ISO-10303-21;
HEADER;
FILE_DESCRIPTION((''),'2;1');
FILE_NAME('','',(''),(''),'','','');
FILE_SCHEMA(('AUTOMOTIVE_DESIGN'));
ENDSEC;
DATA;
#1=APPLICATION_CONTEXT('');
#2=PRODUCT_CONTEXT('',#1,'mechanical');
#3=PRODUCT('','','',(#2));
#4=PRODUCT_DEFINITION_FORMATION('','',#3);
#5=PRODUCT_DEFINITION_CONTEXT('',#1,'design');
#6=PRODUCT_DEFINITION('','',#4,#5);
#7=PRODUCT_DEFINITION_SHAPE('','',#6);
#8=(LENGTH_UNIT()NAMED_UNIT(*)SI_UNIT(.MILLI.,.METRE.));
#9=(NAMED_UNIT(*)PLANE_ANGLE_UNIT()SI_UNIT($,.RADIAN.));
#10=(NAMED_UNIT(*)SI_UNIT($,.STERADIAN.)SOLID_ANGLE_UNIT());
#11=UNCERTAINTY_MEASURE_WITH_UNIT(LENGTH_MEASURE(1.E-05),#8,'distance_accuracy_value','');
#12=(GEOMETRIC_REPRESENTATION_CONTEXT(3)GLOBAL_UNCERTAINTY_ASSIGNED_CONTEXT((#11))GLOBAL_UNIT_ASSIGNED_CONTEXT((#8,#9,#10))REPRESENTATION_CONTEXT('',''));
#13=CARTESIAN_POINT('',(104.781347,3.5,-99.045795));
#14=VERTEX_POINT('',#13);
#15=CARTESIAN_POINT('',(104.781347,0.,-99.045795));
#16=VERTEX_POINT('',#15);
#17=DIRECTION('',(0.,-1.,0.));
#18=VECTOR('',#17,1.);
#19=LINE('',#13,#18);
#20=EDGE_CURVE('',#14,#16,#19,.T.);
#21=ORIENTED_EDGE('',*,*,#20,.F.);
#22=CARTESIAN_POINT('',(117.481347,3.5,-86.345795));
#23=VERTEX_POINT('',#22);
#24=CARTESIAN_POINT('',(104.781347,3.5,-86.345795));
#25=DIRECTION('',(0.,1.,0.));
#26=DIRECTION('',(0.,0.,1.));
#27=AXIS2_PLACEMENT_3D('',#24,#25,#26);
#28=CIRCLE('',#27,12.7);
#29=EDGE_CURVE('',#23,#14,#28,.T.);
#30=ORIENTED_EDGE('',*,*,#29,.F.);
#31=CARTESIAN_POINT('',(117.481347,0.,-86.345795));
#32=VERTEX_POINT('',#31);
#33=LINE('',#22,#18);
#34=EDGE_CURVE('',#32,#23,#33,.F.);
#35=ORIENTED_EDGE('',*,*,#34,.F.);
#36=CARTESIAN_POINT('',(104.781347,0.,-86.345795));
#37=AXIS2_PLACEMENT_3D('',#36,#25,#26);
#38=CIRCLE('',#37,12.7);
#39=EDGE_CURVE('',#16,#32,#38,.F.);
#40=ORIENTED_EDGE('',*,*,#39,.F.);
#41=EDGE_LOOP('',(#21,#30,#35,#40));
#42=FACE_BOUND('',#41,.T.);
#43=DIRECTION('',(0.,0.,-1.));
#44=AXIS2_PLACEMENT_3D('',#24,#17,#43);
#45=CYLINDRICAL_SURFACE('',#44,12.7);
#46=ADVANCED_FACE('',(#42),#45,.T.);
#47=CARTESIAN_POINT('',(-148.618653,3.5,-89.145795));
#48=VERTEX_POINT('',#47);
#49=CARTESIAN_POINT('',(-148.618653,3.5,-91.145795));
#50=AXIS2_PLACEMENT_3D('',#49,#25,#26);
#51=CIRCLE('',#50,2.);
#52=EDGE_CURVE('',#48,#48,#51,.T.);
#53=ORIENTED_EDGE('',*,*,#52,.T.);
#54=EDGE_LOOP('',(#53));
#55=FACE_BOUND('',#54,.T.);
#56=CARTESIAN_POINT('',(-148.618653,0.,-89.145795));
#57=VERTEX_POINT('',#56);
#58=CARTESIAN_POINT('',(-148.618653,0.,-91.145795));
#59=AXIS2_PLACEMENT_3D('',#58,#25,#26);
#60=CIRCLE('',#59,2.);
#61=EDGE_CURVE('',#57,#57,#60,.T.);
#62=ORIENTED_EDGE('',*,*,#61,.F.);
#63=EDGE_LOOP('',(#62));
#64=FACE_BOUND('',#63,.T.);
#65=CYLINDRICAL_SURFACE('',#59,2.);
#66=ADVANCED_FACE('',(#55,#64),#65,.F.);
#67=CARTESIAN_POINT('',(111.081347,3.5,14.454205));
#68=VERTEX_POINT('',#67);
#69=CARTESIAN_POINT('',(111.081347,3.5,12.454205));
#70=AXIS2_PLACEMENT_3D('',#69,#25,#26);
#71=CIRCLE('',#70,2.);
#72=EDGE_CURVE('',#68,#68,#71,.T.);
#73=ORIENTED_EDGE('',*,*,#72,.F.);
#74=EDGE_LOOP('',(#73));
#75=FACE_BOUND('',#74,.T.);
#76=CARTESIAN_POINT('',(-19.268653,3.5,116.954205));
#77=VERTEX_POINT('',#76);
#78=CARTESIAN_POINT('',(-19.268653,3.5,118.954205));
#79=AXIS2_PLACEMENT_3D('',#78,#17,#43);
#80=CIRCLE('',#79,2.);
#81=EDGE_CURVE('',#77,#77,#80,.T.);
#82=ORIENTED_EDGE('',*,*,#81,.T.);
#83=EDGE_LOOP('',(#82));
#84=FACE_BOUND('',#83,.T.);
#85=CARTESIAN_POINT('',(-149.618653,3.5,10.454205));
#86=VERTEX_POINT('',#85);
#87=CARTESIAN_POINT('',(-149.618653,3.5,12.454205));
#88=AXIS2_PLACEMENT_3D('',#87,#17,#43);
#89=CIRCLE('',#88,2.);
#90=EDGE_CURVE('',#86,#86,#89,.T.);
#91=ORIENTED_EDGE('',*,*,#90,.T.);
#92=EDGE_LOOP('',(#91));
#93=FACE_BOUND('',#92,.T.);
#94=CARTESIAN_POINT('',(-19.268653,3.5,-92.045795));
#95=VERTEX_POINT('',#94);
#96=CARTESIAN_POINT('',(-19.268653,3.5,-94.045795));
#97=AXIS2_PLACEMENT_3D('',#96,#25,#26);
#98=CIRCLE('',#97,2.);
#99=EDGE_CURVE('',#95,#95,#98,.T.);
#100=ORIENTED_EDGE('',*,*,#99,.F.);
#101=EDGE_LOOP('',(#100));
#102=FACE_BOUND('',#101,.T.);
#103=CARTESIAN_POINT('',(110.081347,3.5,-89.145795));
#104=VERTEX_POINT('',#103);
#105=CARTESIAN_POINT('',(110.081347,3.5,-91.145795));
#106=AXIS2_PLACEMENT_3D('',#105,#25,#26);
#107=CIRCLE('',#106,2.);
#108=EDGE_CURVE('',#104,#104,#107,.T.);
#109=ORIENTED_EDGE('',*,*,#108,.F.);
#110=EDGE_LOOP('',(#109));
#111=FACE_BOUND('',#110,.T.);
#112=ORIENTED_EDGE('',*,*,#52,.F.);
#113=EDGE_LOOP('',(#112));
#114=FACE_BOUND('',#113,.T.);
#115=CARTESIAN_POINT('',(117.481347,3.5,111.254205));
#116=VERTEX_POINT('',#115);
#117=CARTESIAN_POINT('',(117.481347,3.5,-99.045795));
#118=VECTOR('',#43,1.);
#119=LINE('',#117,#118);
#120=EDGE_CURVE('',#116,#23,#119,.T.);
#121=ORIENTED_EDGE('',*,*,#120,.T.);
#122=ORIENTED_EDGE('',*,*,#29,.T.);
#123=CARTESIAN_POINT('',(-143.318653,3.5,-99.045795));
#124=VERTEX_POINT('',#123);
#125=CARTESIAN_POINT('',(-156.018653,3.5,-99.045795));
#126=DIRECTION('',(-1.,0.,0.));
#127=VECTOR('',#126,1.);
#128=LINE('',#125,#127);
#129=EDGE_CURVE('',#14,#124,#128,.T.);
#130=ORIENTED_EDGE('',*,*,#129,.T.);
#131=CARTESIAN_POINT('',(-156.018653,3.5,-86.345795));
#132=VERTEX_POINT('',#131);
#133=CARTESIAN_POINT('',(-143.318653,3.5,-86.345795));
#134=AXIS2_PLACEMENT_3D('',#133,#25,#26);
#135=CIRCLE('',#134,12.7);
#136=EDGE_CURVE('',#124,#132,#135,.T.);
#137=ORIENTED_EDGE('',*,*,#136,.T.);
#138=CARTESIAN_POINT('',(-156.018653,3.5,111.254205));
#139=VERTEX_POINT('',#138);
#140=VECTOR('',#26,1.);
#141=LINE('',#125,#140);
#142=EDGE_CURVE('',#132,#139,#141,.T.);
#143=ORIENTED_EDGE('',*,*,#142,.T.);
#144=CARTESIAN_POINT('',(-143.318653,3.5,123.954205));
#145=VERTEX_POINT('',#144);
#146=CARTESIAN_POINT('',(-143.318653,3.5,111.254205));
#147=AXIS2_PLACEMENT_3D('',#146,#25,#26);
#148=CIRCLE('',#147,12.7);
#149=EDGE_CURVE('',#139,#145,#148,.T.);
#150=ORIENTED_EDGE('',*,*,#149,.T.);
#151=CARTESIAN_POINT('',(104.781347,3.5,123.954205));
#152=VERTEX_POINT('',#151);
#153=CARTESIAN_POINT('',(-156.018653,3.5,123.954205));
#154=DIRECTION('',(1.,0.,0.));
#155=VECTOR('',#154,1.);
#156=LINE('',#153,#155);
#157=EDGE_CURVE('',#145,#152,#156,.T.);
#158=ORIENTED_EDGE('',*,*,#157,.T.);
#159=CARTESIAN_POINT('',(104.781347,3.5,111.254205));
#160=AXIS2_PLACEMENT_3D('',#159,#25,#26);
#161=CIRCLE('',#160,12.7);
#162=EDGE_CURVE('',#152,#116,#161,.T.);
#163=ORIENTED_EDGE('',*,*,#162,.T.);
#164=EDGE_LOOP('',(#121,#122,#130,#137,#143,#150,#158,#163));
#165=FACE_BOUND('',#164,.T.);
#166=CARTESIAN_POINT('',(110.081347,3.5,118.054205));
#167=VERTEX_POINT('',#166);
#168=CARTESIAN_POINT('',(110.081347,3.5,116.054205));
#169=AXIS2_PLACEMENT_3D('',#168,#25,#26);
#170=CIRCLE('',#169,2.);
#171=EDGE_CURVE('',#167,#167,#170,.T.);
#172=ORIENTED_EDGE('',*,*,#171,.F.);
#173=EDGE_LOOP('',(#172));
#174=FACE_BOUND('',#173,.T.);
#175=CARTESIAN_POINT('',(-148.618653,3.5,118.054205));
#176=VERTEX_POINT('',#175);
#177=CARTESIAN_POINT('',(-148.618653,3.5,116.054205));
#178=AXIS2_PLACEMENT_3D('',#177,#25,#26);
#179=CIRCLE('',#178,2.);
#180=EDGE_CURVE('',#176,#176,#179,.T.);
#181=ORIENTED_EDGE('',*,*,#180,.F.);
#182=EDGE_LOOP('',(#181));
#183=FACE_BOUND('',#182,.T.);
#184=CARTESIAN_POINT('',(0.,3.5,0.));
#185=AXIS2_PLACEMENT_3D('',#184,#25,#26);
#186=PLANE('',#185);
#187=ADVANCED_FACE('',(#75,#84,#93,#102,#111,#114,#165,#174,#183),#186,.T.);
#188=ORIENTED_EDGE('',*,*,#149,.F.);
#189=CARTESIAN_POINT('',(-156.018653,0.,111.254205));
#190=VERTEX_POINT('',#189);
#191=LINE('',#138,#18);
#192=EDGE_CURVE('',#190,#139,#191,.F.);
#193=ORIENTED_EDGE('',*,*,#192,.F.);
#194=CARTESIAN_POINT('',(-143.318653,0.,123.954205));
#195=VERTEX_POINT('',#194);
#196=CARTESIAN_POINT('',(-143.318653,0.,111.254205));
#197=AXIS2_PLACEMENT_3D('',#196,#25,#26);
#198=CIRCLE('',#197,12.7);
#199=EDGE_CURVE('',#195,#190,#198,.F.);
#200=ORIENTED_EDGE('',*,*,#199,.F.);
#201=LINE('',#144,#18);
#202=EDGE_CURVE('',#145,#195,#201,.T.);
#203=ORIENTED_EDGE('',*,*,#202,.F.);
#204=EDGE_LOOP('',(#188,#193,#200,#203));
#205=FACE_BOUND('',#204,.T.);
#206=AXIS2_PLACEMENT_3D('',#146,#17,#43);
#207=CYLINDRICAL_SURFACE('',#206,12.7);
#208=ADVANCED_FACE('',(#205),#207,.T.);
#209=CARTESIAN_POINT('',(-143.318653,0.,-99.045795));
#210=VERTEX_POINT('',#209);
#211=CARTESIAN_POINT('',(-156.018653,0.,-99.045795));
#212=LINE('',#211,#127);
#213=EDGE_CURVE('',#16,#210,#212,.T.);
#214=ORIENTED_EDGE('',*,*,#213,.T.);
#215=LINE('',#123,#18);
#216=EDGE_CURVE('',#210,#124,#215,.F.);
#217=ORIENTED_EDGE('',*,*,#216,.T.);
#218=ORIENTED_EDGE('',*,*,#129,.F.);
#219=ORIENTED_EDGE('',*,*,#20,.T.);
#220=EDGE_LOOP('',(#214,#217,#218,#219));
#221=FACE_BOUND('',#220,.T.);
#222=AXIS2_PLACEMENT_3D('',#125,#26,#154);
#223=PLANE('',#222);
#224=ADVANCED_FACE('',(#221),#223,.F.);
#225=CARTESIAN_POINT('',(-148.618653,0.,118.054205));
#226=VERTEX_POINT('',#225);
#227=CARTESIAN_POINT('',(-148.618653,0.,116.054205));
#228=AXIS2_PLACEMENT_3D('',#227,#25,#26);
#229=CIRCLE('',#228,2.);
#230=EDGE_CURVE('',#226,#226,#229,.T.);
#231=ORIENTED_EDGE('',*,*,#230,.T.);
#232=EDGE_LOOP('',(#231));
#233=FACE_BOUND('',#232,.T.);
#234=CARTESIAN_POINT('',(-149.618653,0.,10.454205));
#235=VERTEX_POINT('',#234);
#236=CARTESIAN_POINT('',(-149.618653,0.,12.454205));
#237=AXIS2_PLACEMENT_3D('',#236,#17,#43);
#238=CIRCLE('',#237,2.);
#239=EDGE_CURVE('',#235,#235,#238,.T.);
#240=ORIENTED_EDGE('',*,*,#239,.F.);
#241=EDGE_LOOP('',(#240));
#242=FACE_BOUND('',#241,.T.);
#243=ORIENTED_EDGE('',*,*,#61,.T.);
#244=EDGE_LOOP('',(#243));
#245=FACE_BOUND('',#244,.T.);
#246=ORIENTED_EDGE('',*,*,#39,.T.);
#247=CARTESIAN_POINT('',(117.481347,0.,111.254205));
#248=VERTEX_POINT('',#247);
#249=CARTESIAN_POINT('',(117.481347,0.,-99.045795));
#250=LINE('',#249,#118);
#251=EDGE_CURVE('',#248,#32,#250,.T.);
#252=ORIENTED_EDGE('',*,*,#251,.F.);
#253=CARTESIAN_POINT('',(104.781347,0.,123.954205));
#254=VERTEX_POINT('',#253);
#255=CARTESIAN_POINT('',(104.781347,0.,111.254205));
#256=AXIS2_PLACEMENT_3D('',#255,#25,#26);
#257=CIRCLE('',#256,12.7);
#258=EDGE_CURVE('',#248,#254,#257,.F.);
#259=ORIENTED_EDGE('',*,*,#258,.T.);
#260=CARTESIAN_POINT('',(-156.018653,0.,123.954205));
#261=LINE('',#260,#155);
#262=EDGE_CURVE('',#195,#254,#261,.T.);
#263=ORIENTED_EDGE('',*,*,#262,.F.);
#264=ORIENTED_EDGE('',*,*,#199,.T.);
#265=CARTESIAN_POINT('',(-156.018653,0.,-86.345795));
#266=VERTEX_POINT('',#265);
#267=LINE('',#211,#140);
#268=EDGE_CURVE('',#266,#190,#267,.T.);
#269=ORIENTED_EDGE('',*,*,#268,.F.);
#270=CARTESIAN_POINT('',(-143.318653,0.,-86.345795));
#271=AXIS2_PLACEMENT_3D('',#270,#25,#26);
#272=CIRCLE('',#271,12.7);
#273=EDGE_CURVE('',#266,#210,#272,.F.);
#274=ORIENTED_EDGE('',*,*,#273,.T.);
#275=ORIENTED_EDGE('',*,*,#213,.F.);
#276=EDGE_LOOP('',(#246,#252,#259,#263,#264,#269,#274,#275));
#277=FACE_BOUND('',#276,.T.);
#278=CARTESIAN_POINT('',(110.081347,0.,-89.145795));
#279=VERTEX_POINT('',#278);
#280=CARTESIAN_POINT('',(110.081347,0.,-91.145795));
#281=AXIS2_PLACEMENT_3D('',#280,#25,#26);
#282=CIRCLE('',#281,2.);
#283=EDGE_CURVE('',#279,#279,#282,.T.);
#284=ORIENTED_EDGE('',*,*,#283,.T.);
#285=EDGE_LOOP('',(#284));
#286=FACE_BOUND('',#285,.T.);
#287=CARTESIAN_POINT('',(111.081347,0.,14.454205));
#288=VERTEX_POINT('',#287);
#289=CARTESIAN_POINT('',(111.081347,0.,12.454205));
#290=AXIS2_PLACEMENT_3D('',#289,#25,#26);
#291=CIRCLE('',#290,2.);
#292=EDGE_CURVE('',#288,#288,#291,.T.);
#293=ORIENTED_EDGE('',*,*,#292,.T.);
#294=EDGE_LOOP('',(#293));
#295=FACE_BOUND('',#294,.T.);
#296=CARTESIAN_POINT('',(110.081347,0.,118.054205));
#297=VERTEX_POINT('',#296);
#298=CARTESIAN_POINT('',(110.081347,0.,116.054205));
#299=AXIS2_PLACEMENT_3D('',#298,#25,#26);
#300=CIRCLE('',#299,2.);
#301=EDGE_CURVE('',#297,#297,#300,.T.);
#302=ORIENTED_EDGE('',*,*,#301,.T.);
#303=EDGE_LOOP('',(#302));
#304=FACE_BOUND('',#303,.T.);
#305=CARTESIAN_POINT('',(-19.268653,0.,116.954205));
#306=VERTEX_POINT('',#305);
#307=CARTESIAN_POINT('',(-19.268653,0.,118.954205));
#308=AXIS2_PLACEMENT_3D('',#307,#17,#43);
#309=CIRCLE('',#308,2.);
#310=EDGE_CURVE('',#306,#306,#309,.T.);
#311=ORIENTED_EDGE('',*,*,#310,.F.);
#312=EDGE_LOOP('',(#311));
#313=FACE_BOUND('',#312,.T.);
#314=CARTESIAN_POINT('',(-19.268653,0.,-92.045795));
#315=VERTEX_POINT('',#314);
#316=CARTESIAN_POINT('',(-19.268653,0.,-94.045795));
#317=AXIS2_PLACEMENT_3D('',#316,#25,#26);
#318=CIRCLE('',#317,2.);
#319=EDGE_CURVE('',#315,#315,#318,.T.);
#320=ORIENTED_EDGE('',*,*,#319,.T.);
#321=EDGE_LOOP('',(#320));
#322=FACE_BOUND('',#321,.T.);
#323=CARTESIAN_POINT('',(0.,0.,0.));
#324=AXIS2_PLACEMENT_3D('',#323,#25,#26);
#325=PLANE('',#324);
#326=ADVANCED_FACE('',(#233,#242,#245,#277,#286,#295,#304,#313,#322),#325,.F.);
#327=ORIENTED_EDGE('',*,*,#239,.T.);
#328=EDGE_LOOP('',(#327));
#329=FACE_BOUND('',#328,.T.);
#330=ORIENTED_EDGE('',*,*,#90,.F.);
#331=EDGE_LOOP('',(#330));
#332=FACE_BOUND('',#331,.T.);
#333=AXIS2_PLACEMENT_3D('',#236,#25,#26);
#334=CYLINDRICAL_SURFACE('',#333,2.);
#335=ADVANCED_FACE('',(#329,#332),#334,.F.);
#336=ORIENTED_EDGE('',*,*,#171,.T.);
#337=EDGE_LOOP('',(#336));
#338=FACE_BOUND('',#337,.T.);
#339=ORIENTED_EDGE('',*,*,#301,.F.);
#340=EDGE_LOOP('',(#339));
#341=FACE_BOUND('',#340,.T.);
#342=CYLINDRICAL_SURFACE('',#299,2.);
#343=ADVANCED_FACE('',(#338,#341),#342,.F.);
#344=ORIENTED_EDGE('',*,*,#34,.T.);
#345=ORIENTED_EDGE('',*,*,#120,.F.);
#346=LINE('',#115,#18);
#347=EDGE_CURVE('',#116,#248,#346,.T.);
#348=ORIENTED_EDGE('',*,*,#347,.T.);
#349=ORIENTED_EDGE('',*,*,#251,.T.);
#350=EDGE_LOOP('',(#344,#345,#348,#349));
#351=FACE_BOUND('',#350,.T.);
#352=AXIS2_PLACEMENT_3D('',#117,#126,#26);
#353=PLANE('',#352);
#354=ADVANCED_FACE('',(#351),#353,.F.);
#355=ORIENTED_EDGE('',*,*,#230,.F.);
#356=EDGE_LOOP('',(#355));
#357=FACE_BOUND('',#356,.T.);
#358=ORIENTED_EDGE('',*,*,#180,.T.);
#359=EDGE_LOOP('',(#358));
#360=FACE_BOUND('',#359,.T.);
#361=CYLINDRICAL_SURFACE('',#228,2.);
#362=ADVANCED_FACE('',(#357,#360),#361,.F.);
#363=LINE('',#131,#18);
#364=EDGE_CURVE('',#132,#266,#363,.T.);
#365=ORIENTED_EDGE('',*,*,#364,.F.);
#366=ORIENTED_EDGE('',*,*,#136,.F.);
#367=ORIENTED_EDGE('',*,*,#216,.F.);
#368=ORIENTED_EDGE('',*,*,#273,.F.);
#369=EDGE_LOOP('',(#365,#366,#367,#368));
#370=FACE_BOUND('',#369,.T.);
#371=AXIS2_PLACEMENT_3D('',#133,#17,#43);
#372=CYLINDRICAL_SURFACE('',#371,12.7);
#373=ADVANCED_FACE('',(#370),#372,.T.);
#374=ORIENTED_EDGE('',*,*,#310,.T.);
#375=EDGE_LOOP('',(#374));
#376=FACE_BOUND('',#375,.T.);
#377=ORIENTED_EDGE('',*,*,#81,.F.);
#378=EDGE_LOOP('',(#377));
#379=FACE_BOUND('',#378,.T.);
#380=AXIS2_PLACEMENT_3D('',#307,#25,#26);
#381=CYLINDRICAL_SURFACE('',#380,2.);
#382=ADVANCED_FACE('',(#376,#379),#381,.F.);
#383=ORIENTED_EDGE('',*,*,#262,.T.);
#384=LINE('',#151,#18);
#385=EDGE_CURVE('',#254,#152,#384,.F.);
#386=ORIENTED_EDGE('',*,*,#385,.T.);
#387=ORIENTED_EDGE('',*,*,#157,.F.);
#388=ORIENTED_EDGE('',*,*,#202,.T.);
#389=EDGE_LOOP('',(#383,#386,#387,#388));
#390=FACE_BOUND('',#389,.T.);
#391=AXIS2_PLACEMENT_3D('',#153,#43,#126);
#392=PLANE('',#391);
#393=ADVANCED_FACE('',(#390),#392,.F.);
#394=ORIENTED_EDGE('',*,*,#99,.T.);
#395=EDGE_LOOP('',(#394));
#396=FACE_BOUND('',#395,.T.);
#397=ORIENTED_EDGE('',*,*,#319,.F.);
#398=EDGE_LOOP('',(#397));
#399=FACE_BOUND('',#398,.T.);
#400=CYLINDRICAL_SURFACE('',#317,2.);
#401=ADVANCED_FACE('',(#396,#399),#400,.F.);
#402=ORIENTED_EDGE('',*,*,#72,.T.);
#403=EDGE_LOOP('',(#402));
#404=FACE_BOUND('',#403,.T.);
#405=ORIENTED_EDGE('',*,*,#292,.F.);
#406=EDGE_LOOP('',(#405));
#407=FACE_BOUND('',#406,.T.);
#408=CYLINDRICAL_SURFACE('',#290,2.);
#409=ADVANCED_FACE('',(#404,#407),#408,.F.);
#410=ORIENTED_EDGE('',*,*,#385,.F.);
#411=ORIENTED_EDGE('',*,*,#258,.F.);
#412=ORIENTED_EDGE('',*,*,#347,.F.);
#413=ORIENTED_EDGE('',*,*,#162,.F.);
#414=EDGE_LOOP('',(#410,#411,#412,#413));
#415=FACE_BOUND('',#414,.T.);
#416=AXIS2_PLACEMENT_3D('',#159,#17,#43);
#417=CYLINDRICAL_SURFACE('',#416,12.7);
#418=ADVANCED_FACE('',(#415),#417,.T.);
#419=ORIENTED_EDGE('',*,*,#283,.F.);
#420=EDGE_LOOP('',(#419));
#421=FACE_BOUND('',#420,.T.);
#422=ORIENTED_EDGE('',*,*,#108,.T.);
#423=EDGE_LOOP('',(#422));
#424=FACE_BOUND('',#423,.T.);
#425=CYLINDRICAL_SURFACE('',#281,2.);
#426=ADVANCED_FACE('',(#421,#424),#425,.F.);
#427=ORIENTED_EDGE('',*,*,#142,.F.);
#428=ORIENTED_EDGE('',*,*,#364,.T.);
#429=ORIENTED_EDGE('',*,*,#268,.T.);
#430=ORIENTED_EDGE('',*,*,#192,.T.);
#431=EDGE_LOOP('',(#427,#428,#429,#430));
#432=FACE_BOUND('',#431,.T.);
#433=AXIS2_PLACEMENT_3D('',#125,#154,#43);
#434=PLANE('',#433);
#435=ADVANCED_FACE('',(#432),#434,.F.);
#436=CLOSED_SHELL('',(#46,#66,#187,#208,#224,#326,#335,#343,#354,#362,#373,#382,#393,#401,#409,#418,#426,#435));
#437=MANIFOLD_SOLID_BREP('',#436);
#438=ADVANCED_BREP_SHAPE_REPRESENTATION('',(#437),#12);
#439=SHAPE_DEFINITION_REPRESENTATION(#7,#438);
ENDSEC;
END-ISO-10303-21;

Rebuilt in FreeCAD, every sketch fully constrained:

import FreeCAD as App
import Part
import Sketcher
from FreeCAD import Vector
Q = App.Units.Quantity


def edges_at(feature, points):
    """Names of the edges that pass closest to the given points."""
    edges = feature.Shape.Edges
    near = lambda p: min(range(len(edges)), key=lambda i: edges[i].distToShape(Part.Vertex(*p))[0])
    return sorted({f"Edge{near(p) + 1}" for p in points})

doc = App.newDocument("Part")
body = doc.addObject("PartDesign::Body", "Body")

# Sketch on XZ plane
sketch1 = body.newObject("Sketcher::SketchObject", "Sketch")
sketch1.AttachmentSupport = (doc.getObject("XZ_Plane"), [""])
sketch1.MapMode = "FlatFace"
sketch1.addGeometry([
    Part.LineSegment(Vector(-156, -99, 0), Vector(-156, 124, 0)),
    Part.LineSegment(Vector(-156, 124, 0), Vector(117, 124, 0)),
    Part.LineSegment(Vector(117, 124, 0), Vector(117, -99, 0)),
    Part.LineSegment(Vector(117, -99, 0), Vector(-156, -99, 0)),
], False)
sketch1.addConstraint([
    Sketcher.Constraint("Coincident", 0, 2, 1, 1),
    Sketcher.Constraint("Coincident", 1, 2, 2, 1),
    Sketcher.Constraint("Coincident", 2, 2, 3, 1),
    Sketcher.Constraint("Coincident", 3, 2, 0, 1),
    Sketcher.Constraint("Vertical", 0),
    Sketcher.Constraint("Horizontal", 1),
    Sketcher.Constraint("Vertical", 2),
    Sketcher.Constraint("Horizontal", 3),
    Sketcher.Constraint("DistanceY", 0, 1, 0, 2, Q("223 mm")),
    Sketcher.Constraint("DistanceX", 1, 1, 1, 2, Q("273.5 mm")),
    Sketcher.Constraint("DistanceX", 0, 2, -1, 1, Q("156.018653 mm")),
    Sketcher.Constraint("DistanceY", -1, 1, 0, 2, Q("123.954205 mm")),
])
pad1 = body.newObject("PartDesign::Pad", "Pad")
pad1.Profile = sketch1
pad1.Length = 3.5
pad1.Reversed = True
doc.recompute()

fillet = body.newObject("PartDesign::Fillet", "Fillet")
fillet.Base = (pad1, edges_at(pad1, [
    (-156.019, 1.75, -99.046),
    (117.481, 1.75, -99.046),
    (117.481, 1.75, 123.954),
    (-156.019, 1.75, 123.954),
]))
fillet.Radius = 12.7

# Sketch on XZ plane
sketch2 = body.newObject("Sketcher::SketchObject", "Sketch001")
sketch2.AttachmentSupport = (doc.getObject("XZ_Plane"), [""])
sketch2.MapMode = "FlatFace"
sketch2.AttachmentOffset = App.Placement(Vector(0, 0, -3.5), App.Rotation())
sketch2.addGeometry([
    Part.Circle(Vector(-19.3, -94, 0), Vector(0, 0, 1), 2),  # 0
    Part.Circle(Vector(-148.6, -91.1, 0), Vector(0, 0, 1), 2),  # 1
    Part.Circle(Vector(110.1, -91.1, 0), Vector(0, 0, 1), 2),  # 2
    Part.Circle(Vector(110.1, 116.1, 0), Vector(0, 0, 1), 2),  # 3
    Part.Circle(Vector(-148.6, 116.1, 0), Vector(0, 0, 1), 2),  # 4
    Part.Circle(Vector(-19.3, 119, 0), Vector(0, 0, 1), 2),  # 5
    Part.Circle(Vector(111.1, 12.5, 0), Vector(0, 0, 1), 2),  # 6
    Part.Circle(Vector(-149.6, 12.5, 0), Vector(0, 0, 1), 2),  # 7
], False)
sketch2.addConstraint([
    Sketcher.Constraint("Equal", 0, 1),
    Sketcher.Constraint("Equal", 1, 2),
    Sketcher.Constraint("Equal", 2, 3),
    Sketcher.Constraint("Equal", 3, 4),
    Sketcher.Constraint("Equal", 4, 5),
    Sketcher.Constraint("Equal", 5, 6),
    Sketcher.Constraint("Equal", 6, 7),
    Sketcher.Constraint("Horizontal", 1, 3, 2, 3),
    Sketcher.Constraint("Horizontal", 3, 3, 4, 3),
    Sketcher.Constraint("Horizontal", 6, 3, 7, 3),
    Sketcher.Constraint("Vertical", 2, 3, 3, 3),
    Sketcher.Constraint("Vertical", 1, 3, 4, 3),
    Sketcher.Constraint("Vertical", 0, 3, 5, 3),
    Sketcher.Constraint("Diameter", 0, Q("4 mm")),
    Sketcher.Constraint("DistanceY", 0, 3, 5, 3, Q("213 mm")),
    Sketcher.Constraint("DistanceX", 3, 3, 6, 3, Q("1 mm")),
    Sketcher.Constraint("DistanceX", 7, 3, 4, 3, Q("1 mm")),
    Sketcher.Constraint("DistanceY", 0, 3, 1, 3, Q("2.9 mm")),
    Sketcher.Constraint("DistanceX", 1, 3, 2, 3, Q("258.7 mm")),
    Sketcher.Constraint("DistanceY", 2, 3, 3, 3, Q("207.2 mm")),
    Sketcher.Constraint("DistanceY", 6, 3, 3, 3, Q("103.6 mm")),
    Sketcher.Constraint("DistanceX", 1, 3, 0, 3, Q("129.35 mm")),
    Sketcher.Constraint("DistanceX", 0, 3, -1, 1, Q("19.268653 mm")),
    Sketcher.Constraint("DistanceY", 0, 3, -1, 1, Q("94.045795 mm")),
])
pocket1 = body.newObject("PartDesign::Pocket", "Pocket")
pocket1.Profile = sketch2
pocket1.Length = 3.5
pocket1.Reversed = True

doc.recompute()
